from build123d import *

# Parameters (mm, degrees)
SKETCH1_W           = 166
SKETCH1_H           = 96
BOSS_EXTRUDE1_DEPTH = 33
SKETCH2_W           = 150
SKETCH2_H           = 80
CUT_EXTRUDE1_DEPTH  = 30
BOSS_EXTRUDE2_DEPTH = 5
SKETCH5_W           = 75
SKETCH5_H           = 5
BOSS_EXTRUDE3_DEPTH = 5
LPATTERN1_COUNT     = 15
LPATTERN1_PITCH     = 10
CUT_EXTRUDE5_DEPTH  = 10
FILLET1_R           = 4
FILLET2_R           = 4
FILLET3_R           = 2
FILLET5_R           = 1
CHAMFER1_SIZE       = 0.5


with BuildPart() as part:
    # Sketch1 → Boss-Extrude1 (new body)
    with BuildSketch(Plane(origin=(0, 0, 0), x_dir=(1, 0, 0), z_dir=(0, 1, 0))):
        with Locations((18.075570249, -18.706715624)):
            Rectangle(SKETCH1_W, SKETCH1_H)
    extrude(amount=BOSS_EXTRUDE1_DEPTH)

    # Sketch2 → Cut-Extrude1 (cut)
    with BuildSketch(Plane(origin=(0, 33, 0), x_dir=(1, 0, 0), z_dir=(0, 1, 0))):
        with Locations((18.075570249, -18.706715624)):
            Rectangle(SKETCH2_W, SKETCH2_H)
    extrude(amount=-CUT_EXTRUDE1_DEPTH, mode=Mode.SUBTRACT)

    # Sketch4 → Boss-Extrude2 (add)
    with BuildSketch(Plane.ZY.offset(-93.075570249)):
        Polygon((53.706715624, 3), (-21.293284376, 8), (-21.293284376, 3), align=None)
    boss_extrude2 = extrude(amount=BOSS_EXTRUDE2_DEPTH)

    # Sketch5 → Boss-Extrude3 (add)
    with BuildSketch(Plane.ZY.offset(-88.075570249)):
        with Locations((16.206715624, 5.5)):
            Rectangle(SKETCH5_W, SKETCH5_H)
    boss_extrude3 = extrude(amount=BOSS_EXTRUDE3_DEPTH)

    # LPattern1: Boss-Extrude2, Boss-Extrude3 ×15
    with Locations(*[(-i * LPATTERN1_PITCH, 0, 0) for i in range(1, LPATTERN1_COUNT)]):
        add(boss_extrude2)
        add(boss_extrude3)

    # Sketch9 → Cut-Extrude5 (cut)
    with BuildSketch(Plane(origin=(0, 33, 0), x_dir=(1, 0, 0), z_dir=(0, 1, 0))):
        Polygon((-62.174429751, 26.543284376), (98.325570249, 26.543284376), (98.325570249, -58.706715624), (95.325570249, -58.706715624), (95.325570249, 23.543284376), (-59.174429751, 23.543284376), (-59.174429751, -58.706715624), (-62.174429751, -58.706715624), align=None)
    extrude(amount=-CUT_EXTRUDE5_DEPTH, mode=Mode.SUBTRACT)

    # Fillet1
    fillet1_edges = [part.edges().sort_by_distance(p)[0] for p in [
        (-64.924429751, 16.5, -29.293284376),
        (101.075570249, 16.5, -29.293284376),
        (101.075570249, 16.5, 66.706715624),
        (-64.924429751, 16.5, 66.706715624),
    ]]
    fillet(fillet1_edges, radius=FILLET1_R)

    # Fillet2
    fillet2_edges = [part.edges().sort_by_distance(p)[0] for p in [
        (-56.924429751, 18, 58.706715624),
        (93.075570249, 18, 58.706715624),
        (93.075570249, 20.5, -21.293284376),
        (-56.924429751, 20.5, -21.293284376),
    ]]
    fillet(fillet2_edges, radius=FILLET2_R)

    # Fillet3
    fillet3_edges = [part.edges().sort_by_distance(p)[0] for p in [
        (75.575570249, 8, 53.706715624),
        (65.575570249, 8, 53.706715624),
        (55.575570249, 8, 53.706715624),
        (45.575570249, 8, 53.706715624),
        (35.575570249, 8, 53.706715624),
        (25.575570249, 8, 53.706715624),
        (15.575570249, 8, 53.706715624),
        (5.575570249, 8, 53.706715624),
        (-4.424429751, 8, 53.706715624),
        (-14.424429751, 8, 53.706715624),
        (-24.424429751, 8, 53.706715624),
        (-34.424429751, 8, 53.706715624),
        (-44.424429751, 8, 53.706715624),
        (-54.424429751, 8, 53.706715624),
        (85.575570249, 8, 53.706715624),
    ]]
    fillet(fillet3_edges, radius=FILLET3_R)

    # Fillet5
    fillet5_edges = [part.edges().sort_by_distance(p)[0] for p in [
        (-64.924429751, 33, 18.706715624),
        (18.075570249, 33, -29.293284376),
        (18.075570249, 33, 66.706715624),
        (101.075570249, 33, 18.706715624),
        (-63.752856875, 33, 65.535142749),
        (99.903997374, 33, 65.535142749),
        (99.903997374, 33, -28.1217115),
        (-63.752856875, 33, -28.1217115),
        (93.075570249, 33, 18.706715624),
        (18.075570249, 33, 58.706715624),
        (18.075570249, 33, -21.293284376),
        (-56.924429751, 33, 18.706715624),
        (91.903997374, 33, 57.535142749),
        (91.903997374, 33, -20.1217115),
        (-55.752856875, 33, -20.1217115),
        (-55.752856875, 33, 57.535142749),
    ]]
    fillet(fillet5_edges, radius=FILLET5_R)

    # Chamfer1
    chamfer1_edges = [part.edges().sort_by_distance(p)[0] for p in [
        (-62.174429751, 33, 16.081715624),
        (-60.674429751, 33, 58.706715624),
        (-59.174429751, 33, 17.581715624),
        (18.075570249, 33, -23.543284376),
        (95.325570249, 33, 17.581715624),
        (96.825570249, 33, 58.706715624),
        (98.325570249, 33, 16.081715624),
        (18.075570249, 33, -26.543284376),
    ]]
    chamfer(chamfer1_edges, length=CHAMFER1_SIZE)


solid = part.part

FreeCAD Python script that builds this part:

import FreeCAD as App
import Part
import Sketcher


def edges_at(feature, points):
    """Names of the edges that pass closest to the given points."""
    edges = feature.Shape.Edges
    near = lambda p: min(range(len(edges)), key=lambda i: edges[i].distToShape(Part.Vertex(*p))[0])
    return sorted({f"Edge{near(p) + 1}" for p in points})

doc = App.newDocument("Part")
body = doc.addObject("PartDesign::Body", "Body")

sketch1 = body.newObject("Sketcher::SketchObject", "Sketch")
sketch1.AttachmentSupport = (doc.getObject("XZ_Plane"), [""])
sketch1.MapMode = "FlatFace"
sketch1.addGeometry([
    Part.LineSegment(App.Vector(-65, -29, 0), App.Vector(-65, 67, 0)),
    Part.LineSegment(App.Vector(-65, 67, 0), App.Vector(101, 67, 0)),
    Part.LineSegment(App.Vector(101, 67, 0), App.Vector(101, -29, 0)),
    Part.LineSegment(App.Vector(101, -29, 0), App.Vector(-65, -29, 0)),
], False)
sketch1.addConstraint([
    Sketcher.Constraint("Coincident", 0, 2, 1, 1),
    Sketcher.Constraint("Coincident", 1, 2, 2, 1),
    Sketcher.Constraint("Coincident", 2, 2, 3, 1),
    Sketcher.Constraint("Coincident", 3, 2, 0, 1),
    Sketcher.Constraint("Vertical", 0),
    Sketcher.Constraint("Horizontal", 1),
    Sketcher.Constraint("Vertical", 2),
    Sketcher.Constraint("Horizontal", 3),
    Sketcher.Constraint("DistanceX", 1, 1, 1, 2, 166.0),
    Sketcher.Constraint("DistanceY", 0, 1, 0, 2, 96.0),
    Sketcher.Constraint("DistanceX", 0, 2, -1, 1, 64.92443),
    Sketcher.Constraint("DistanceY", -1, 1, 0, 2, 66.706716),
])
pad1 = body.newObject("PartDesign::Pad", "Pad")
pad1.Profile = sketch1
pad1.Length = 33
pad1.Reversed = True

sketch2 = body.newObject("Sketcher::SketchObject", "Sketch001")
sketch2.AttachmentSupport = (doc.getObject("XZ_Plane"), [""])
sketch2.MapMode = "FlatFace"
sketch2.AttachmentOffset = App.Placement(App.Vector(0, 0, -33), App.Rotation())
sketch2.addGeometry([
    Part.LineSegment(App.Vector(-57, -21, 0), App.Vector(-57, 59, 0)),
    Part.LineSegment(App.Vector(-57, 59, 0), App.Vector(93, 59, 0)),
    Part.LineSegment(App.Vector(93, 59, 0), App.Vector(93, -21, 0)),
    Part.LineSegment(App.Vector(93, -21, 0), App.Vector(-57, -21, 0)),
], False)
sketch2.addConstraint([
    Sketcher.Constraint("Coincident", 0, 2, 1, 1),
    Sketcher.Constraint("Coincident", 1, 2, 2, 1),
    Sketcher.Constraint("Coincident", 2, 2, 3, 1),
    Sketcher.Constraint("Coincident", 3, 2, 0, 1),
    Sketcher.Constraint("Vertical", 0),
    Sketcher.Constraint("Horizontal", 1),
    Sketcher.Constraint("Vertical", 2),
    Sketcher.Constraint("Horizontal", 3),
    Sketcher.Constraint("DistanceX", 1, 1, 1, 2, 150.0),
    Sketcher.Constraint("DistanceY", 0, 1, 0, 2, 80.0),
    Sketcher.Constraint("DistanceX", 0, 2, -1, 1, 56.92443),
    Sketcher.Constraint("DistanceY", -1, 1, 0, 2, 58.706716),
])
pocket1 = body.newObject("PartDesign::Pocket", "Pocket")
pocket1.Profile = sketch2
pocket1.Length = 30
pocket1.Reversed = True

sketch3 = body.newObject("Sketcher::SketchObject", "Sketch002")
sketch3.AttachmentSupport = (doc.getObject("YZ_Plane"), [""])
sketch3.MapMode = "FlatFace"
sketch3.AttachmentOffset = App.Placement(App.Vector(0, 0, 93.07557), App.Rotation())
sketch3.addGeometry([
    Part.LineSegment(App.Vector(3, 54, 0), App.Vector(8, -21, 0)),
    Part.LineSegment(App.Vector(8, -21, 0), App.Vector(3, -21, 0)),
    Part.LineSegment(App.Vector(3, -21, 0), App.Vector(3, 54, 0)),
], False)
sketch3.addConstraint([
    Sketcher.Constraint("Coincident", 0, 2, 1, 1),
    Sketcher.Constraint("Coincident", 1, 2, 2, 1),
    Sketcher.Constraint("Coincident", 2, 2, 0, 1),
    Sketcher.Constraint("Horizontal", 1),
    Sketcher.Constraint("Vertical", 2),
    Sketcher.Constraint("DistanceX", 1, 2, 1, 1, 5.0),
    Sketcher.Constraint("DistanceY", 2, 1, 2, 2, 75.0),
    Sketcher.Constraint("DistanceX", -1, 1, 0, 2, 8.0),
    Sketcher.Constraint("DistanceY", 0, 2, -1, 1, 21.293284),
])
pad2 = body.newObject("PartDesign::Pad", "Pad001")
pad2.Profile = sketch3
pad2.Length = 5
pad2.Reversed = True

sketch4 = body.newObject("Sketcher::SketchObject", "Sketch003")
sketch4.AttachmentSupport = (doc.getObject("YZ_Plane"), [""])
sketch4.MapMode = "FlatFace"
sketch4.AttachmentOffset = App.Placement(App.Vector(0, 0, 88.07557), App.Rotation())
sketch4.addGeometry([
    Part.LineSegment(App.Vector(8, -21, 0), App.Vector(3, -21, 0)),
    Part.LineSegment(App.Vector(3, -21, 0), App.Vector(3, 54, 0)),
    Part.LineSegment(App.Vector(3, 54, 0), App.Vector(8, 54, 0)),
    Part.LineSegment(App.Vector(8, 54, 0), App.Vector(8, -21, 0)),
], False)
sketch4.addConstraint([
    Sketcher.Constraint("Coincident", 0, 2, 1, 1),
    Sketcher.Constraint("Coincident", 1, 2, 2, 1),
    Sketcher.Constraint("Coincident", 2, 2, 3, 1),
    Sketcher.Constraint("Coincident", 3, 2, 0, 1),
    Sketcher.Constraint("Horizontal", 0),
    Sketcher.Constraint("Vertical", 1),
    Sketcher.Constraint("Horizontal", 2),
    Sketcher.Constraint("Vertical", 3),
    Sketcher.Constraint("DistanceX", 0, 2, 0, 1, 5.0),
    Sketcher.Constraint("DistanceY", 1, 1, 1, 2, 75.0),
    Sketcher.Constraint("DistanceX", -1, 1, 0, 2, 3.0),
    Sketcher.Constraint("DistanceY", 0, 2, -1, 1, 21.293284),
])
pad3 = body.newObject("PartDesign::Pad", "Pad002")
pad3.Profile = sketch4
pad3.Length = 5
pad3.Reversed = True
doc.recompute()

linearpattern = body.newObject("PartDesign::LinearPattern", "LinearPattern")
linearpattern.Originals = [pad2, pad3]
linearpattern.Direction = (doc.getObject("X_Axis"), [""])
linearpattern.Mode = "offset"
linearpattern.Offset = 10
linearpattern.Occurrences = 15
linearpattern.Reversed = True
body.Tip = linearpattern

sketch5 = body.newObject("Sketcher::SketchObject", "Sketch004")
sketch5.AttachmentSupport = (doc.getObject("XZ_Plane"), [""])
sketch5.MapMode = "FlatFace"
sketch5.AttachmentOffset = App.Placement(App.Vector(0, 0, -33), App.Rotation())
sketch5.addGeometry([
    Part.LineSegment(App.Vector(98.3, -26.5, 0), App.Vector(-62.2, -26.5, 0)),
    Part.LineSegment(App.Vector(-62.2, -26.5, 0), App.Vector(-62.2, 58.7, 0)),
    Part.LineSegment(App.Vector(-62.2, 58.7, 0), App.Vector(-59.2, 58.7, 0)),
    Part.LineSegment(App.Vector(-59.2, 58.7, 0), App.Vector(-59.2, -23.5, 0)),
    Part.LineSegment(App.Vector(-59.2, -23.5, 0), App.Vector(95.3, -23.5, 0)),
    Part.LineSegment(App.Vector(95.3, -23.5, 0), App.Vector(95.3, 58.7, 0)),
    Part.LineSegment(App.Vector(95.3, 58.7, 0), App.Vector(98.3, 58.7, 0)),
    Part.LineSegment(App.Vector(98.3, 58.7, 0), App.Vector(98.3, -26.5, 0)),
], False)
sketch5.addConstraint([
    Sketcher.Constraint("Coincident", 0, 2, 1, 1),
    Sketcher.Constraint("Coincident", 1, 2, 2, 1),
    Sketcher.Constraint("Coincident", 2, 2, 3, 1),
    Sketcher.Constraint("Coincident", 3, 2, 4, 1),
    Sketcher.Constraint("Coincident", 4, 2, 5, 1),
    Sketcher.Constraint("Coincident", 5, 2, 6, 1),
    Sketcher.Constraint("Coincident", 6, 2, 7, 1),
    Sketcher.Constraint("Coincident", 7, 2, 0, 1),
    Sketcher.Constraint("Horizontal", 0),
    Sketcher.Constraint("Vertical", 1),
    Sketcher.Constraint("Horizontal", 2),
    Sketcher.Constraint("Vertical", 3),
    Sketcher.Constraint("Horizontal", 4),
    Sketcher.Constraint("Vertical", 5),
    Sketcher.Constraint("Horizontal", 6),
    Sketcher.Constraint("Vertical", 7),
    Sketcher.Constraint("Horizontal", 2, 2, 5, 2),
    Sketcher.Constraint("Equal", 2, 6),
    Sketcher.Constraint("DistanceX", 2, 1, 2, 2, 3.0),
    Sketcher.Constraint("DistanceX", 0, 2, 0, 1, 160.5),
    Sketcher.Constraint("DistanceY", 0, 2, 3, 2, 3.0),
    Sketcher.Constraint("DistanceY", 1, 1, 1, 2, 85.25),
    Sketcher.Constraint("DistanceX", 0, 2, -1, 1, 62.17443),
    Sketcher.Constraint("DistanceY", 0, 2, -1, 1, 26.543284),
])
pocket2 = body.newObject("PartDesign::Pocket", "Pocket001")
pocket2.Profile = sketch5
pocket2.Length = 10
pocket2.Reversed = True
doc.recompute()

fillet = body.newObject("PartDesign::Fillet", "Fillet")
fillet.Base = (pocket2, edges_at(pocket2, [
    (-64.924, 16.5, -29.293),
    (101.076, 16.5, -29.293),
    (101.076, 16.5, 66.707),
    (-64.924, 16.5, 66.707),
]))
fillet.Radius = 4
doc.recompute()

fillet2 = body.newObject("PartDesign::Fillet", "Fillet001")
fillet2.Base = (fillet, edges_at(fillet, [
    (-56.924, 18, 58.707),
    (93.076, 18, 58.707),
    (93.076, 20.5, -21.293),
    (-56.924, 20.5, -21.293),
]))
fillet2.Radius = 4
doc.recompute()

fillet3 = body.newObject("PartDesign::Fillet", "Fillet002")
fillet3.Base = (fillet2, edges_at(fillet2, [
    (75.576, 8, 53.707),
    (65.576, 8, 53.707),
    (55.576, 8, 53.707),
    (45.576, 8, 53.707),
    (35.576, 8, 53.707),
    (25.576, 8, 53.707),
    (15.576, 8, 53.707),
    (5.576, 8, 53.707),
    (-4.424, 8, 53.707),
    (-14.424, 8, 53.707),
    (-24.424, 8, 53.707),
    (-34.424, 8, 53.707),
    (-44.424, 8, 53.707),
    (-54.424, 8, 53.707),
    (85.576, 8, 53.707),
]))
fillet3.Radius = 2
doc.recompute()

fillet4 = body.newObject("PartDesign::Fillet", "Fillet003")
fillet4.Base = (fillet3, edges_at(fillet3, [
    (-64.924, 33, 18.707),
    (18.076, 33, -29.293),
    (18.076, 33, 66.707),
    (101.076, 33, 18.707),
    (-63.753, 33, 65.535),
    (99.904, 33, 65.535),
    (99.904, 33, -28.122),
    (-63.753, 33, -28.122),
    (93.076, 33, 18.707),
    (18.076, 33, 58.707),
    (18.076, 33, -21.293),
    (-56.924, 33, 18.707),
    (91.904, 33, 57.535),
    (91.904, 33, -20.122),
    (-55.753, 33, -20.122),
    (-55.753, 33, 57.535),
]))
fillet4.Radius = 1
doc.recompute()

chamfer = body.newObject("PartDesign::Chamfer", "Chamfer")
chamfer.Base = (fillet4, edges_at(fillet4, [
    (-62.174, 33, 16.082),
    (-60.674, 33, 58.707),
    (-59.174, 33, 17.582),
    (18.076, 33, -23.543),
    (95.326, 33, 17.582),
    (96.826, 33, 58.707),
    (98.326, 33, 16.082),
    (18.076, 33, -26.543),
]))
chamfer.Size = 0.5

doc.recompute()
